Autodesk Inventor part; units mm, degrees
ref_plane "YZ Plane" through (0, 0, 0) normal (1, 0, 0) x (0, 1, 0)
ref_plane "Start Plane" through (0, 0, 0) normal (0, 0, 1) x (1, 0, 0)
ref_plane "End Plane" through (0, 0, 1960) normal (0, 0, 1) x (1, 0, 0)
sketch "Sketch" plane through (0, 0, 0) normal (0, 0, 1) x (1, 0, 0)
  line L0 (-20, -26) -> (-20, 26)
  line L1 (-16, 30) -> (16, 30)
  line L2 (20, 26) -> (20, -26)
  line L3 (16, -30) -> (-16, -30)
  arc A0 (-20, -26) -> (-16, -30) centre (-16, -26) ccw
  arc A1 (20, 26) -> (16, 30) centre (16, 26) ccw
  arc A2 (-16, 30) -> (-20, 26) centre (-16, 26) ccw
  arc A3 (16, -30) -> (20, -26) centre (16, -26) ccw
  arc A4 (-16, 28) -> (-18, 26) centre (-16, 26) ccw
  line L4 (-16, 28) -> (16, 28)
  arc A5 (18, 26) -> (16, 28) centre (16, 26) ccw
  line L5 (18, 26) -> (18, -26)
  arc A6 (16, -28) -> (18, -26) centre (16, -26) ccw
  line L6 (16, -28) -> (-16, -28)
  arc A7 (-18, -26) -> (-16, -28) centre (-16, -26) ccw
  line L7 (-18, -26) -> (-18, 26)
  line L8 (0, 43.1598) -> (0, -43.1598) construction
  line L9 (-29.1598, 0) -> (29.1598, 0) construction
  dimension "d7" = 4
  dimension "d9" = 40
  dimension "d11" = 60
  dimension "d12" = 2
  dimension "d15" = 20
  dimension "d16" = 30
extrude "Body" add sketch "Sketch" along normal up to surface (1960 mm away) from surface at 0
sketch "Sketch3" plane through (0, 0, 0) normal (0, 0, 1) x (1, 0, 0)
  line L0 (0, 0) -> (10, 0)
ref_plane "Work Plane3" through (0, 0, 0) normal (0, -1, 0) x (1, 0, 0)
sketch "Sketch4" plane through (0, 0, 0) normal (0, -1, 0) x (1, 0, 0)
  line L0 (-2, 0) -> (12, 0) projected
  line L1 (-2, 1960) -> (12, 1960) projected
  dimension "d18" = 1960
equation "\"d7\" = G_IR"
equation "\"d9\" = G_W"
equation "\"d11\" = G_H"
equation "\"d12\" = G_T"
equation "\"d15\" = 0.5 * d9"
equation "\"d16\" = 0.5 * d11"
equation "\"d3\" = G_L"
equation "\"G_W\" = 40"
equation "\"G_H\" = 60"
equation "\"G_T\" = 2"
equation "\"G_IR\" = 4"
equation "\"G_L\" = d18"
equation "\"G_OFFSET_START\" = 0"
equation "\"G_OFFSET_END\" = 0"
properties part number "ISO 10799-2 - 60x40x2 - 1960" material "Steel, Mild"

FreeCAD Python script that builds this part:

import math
import FreeCAD as App
import Part
import Sketcher

V = App.Vector
Q = App.Units.Quantity

doc = App.newDocument("Part")
params = doc.addObject("Spreadsheet::Sheet", "Params")
for row, (alias, value) in enumerate([
    ("sketch1_radius", "4 mm"),
    ("sketch1_radius2", "2 mm"),
    ("pad1_length", "1960 mm"),
], start=1):
    params.set(f"A{row}", alias)
    params.set(f"B{row}", "=" + value)
    params.setAlias(f"B{row}", alias)

body = doc.addObject("PartDesign::Body", "Body")

# Sketch on XY plane
sketch1 = body.newObject("Sketcher::SketchObject", "Sketch")
sketch1.AttachmentSupport = (doc.getObject("XY_Plane"), [""])
sketch1.MapMode = "FlatFace"
sketch1.addGeometry([
    Part.LineSegment(V(-20, 26, 0), V(-20, -26, 0)),  # 0
    Part.ArcOfCircle(Part.Circle(V(-16, -26, 0), V(0, 0, 1), 4), math.radians(180), math.radians(270)),  # 1
    Part.LineSegment(V(-16, -30, 0), V(16, -30, 0)),  # 2
    Part.ArcOfCircle(Part.Circle(V(16, -26, 0), V(0, 0, 1), 4), math.radians(-90), math.radians(0)),  # 3
    Part.LineSegment(V(20, -26, 0), V(20, 26, 0)),  # 4
    Part.ArcOfCircle(Part.Circle(V(16, 26, 0), V(0, 0, 1), 4), math.radians(0), math.radians(90)),  # 5
    Part.LineSegment(V(16, 30, 0), V(-16, 30, 0)),  # 6
    Part.ArcOfCircle(Part.Circle(V(-16, 26, 0), V(0, 0, 1), 4), math.radians(90), math.radians(180)),  # 7
    Part.ArcOfCircle(Part.Circle(V(-16, 26, 0), V(0, 0, 1), 2), math.radians(90), math.radians(180)),  # 8
    Part.LineSegment(V(-16, 28, 0), V(16, 28, 0)),  # 9
    Part.ArcOfCircle(Part.Circle(V(16, 26, 0), V(0, 0, 1), 2), math.radians(0), math.radians(90)),  # 10
    Part.LineSegment(V(18, 26, 0), V(18, -26, 0)),  # 11
    Part.ArcOfCircle(Part.Circle(V(16, -26, 0), V(0, 0, 1), 2), math.radians(-90), math.radians(0)),  # 12
    Part.LineSegment(V(16, -28, 0), V(-16, -28, 0)),  # 13
    Part.ArcOfCircle(Part.Circle(V(-16, -26, 0), V(0, 0, 1), 2), math.radians(180), math.radians(270)),  # 14
    Part.LineSegment(V(-18, -26, 0), V(-18, 26, 0)),  # 15
], False)
sketch1.addConstraint([
    Sketcher.Constraint("Tangent", 0, 2, 1, 1),
    Sketcher.Constraint("Tangent", 1, 2, 2, 1),
    Sketcher.Constraint("Tangent", 2, 2, 3, 1),
    Sketcher.Constraint("Tangent", 3, 2, 4, 1),
    Sketcher.Constraint("Tangent", 4, 2, 5, 1),
    Sketcher.Constraint("Tangent", 5, 2, 6, 1),
    Sketcher.Constraint("Tangent", 6, 2, 7, 1),
    Sketcher.Constraint("Tangent", 7, 2, 0, 1),
    Sketcher.Constraint("Tangent", 8, 1, 9, 1),
    Sketcher.Constraint("Tangent", 9, 2, 10, 2),
    Sketcher.Constraint("Tangent", 10, 1, 11, 1),
    Sketcher.Constraint("Tangent", 11, 2, 12, 2),
    Sketcher.Constraint("Tangent", 12, 1, 13, 1),
    Sketcher.Constraint("Tangent", 13, 2, 14, 2),
    Sketcher.Constraint("Tangent", 14, 1, 15, 1),
    Sketcher.Constraint("Tangent", 15, 2, 8, 2),
    Sketcher.Constraint("Vertical", 0),
    Sketcher.Constraint("Horizontal", 2),
    Sketcher.Constraint("Vertical", 4),
    Sketcher.Constraint("Horizontal", 6),
    Sketcher.Constraint("Horizontal", 9),
    Sketcher.Constraint("Vertical", 11),
    Sketcher.Constraint("Horizontal", 13),
    Sketcher.Constraint("Vertical", 15),
    Sketcher.Constraint("Coincident", 8, 3, 7, 3),
    Sketcher.Constraint("Coincident", 10, 3, 5, 3),
    Sketcher.Constraint("Coincident", 12, 3, 3, 3),
    Sketcher.Constraint("Equal", 1, 3),
    Sketcher.Constraint("Equal", 3, 5),
    Sketcher.Constraint("Equal", 5, 7),
    Sketcher.Constraint("Equal", 12, 14),
    Sketcher.Constraint("Symmetric", 1, 3, 5, 3, -1, 1),
    Sketcher.Constraint("Radius", 1, Q("4 mm")),
    Sketcher.Constraint("Radius", 8, Q("2 mm")),
    Sketcher.Constraint("DistanceX", 0, 2, -1, 1, Q("20 mm")),
    Sketcher.Constraint("DistanceY", 1, 2, -1, 1, Q("30 mm")),
])
sketch1.setExpression("Constraints[32]", "Params.sketch1_radius")
sketch1.setExpression("Constraints[33]", "Params.sketch1_radius2")
pad1 = body.newObject("PartDesign::Pad", "Pad")
pad1.Profile = sketch1
pad1.setExpression("Length", "Params.pad1_length")

doc.recompute()
